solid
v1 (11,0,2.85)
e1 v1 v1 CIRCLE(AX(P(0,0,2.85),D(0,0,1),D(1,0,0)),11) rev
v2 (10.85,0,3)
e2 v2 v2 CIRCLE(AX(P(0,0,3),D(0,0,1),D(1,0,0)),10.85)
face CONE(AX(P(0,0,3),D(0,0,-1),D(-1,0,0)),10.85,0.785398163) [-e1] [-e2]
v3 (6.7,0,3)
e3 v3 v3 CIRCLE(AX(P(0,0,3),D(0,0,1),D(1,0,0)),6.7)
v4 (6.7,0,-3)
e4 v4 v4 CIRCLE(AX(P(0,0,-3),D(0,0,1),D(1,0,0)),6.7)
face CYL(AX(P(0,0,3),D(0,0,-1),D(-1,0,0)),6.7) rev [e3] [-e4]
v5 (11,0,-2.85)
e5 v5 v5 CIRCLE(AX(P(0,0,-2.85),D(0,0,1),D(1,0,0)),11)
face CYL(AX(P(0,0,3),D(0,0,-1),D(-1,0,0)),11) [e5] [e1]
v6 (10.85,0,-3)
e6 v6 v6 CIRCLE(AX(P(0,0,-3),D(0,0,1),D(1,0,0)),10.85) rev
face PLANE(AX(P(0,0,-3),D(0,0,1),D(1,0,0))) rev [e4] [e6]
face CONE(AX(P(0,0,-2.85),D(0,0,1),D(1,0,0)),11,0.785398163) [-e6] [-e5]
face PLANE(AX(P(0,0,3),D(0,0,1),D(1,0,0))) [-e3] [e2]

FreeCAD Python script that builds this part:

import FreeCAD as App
import Part
import Sketcher

V = App.Vector


def edges_at(feature, points):
    """Names of the edges that pass closest to the given points."""
    edges = feature.Shape.Edges
    near = lambda p: min(range(len(edges)), key=lambda i: edges[i].distToShape(Part.Vertex(*p))[0])
    return sorted({f"Edge{near(p) + 1}" for p in points})

doc = App.newDocument("Part")
body = doc.addObject("PartDesign::Body", "Body")

# Sketch on XY plane
sketch1 = body.newObject("Sketcher::SketchObject", "Sketch")
sketch1.AttachmentSupport = (doc.getObject("XY_Plane"), [""])
sketch1.MapMode = "FlatFace"
sketch1.addGeometry(Part.Circle(V(0, 0, 0), V(0, 0, 1), 11), False)
sketch1.addGeometry(Part.Circle(V(0, 0, 0), V(0, 0, 1), 7), False)
sketch1.addConstraint(Sketcher.Constraint("Coincident", 0, 3, -1, 1))
sketch1.addConstraint(Sketcher.Constraint("Coincident", 1, 3, -1, 1))
sketch1.addConstraint(Sketcher.Constraint("Diameter", 0, 22.0))
sketch1.addConstraint(Sketcher.Constraint("Diameter", 1, 13.4))
pad1 = body.newObject("PartDesign::Pad", "Pad")
pad1.Profile = sketch1
pad1.Length = 6
pad1.Midplane = True
doc.recompute()

chamfer = body.newObject("PartDesign::Chamfer", "Chamfer")
chamfer.Base = (pad1, edges_at(pad1, [(-11, 0, -3), (-11, 0, 3)]))
chamfer.Size = 0.15

doc.recompute()
